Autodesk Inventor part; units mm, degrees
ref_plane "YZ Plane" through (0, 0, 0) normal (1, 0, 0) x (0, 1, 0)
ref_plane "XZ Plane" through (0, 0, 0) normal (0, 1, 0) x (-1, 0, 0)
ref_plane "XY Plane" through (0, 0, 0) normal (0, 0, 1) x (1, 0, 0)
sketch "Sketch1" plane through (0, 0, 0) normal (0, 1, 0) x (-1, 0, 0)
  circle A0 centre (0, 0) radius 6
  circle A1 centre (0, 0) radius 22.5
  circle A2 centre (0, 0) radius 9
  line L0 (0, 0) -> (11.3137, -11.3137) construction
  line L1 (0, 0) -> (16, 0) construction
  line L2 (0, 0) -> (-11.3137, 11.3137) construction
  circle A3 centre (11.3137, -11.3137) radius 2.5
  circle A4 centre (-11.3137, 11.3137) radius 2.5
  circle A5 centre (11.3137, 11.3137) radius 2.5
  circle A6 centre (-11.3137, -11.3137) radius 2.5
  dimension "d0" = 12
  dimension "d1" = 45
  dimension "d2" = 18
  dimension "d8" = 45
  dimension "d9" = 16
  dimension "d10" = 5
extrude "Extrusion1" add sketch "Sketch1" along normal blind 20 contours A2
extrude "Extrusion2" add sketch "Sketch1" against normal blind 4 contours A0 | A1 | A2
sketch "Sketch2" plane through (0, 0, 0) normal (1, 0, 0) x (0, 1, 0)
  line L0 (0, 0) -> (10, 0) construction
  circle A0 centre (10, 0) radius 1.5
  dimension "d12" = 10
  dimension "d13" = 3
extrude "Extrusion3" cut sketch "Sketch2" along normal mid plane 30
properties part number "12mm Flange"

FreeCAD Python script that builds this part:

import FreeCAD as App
import Part
import Sketcher

doc = App.newDocument("Part")
body = doc.addObject("PartDesign::Body", "Body")

sketch1 = body.newObject("Sketcher::SketchObject", "Sketch")
sketch1.AttachmentSupport = (doc.getObject("XZ_Plane"), [""])
sketch1.MapMode = "FlatFace"
sketch1.addGeometry(Part.Circle(App.Vector(0, 0, 0), App.Vector(0, 0, 1), 9), False)
sketch1.addGeometry(Part.Circle(App.Vector(0, 0, 0), App.Vector(0, 0, 1), 6), False)
sketch1.addConstraint(Sketcher.Constraint("Coincident", 0, 3, -1, 1))
sketch1.addConstraint(Sketcher.Constraint("Coincident", 1, 3, -1, 1))
sketch1.addConstraint(Sketcher.Constraint("Diameter", 0, 18.0))
sketch1.addConstraint(Sketcher.Constraint("Diameter", 1, 12.0))
pad1 = body.newObject("PartDesign::Pad", "Pad")
pad1.Profile = sketch1
pad1.Length = 20
pad1.Reversed = True

sketch2 = body.newObject("Sketcher::SketchObject", "Sketch001")
sketch2.AttachmentSupport = (doc.getObject("XZ_Plane"), [""])
sketch2.MapMode = "FlatFace"
sketch2.addGeometry(Part.Circle(App.Vector(0, 0, 0), App.Vector(0, 0, 1), 22.5), False)
sketch2.addGeometry(Part.Circle(App.Vector(11.3, -11.3, 0), App.Vector(0, 0, 1), 2.5), False)
sketch2.addGeometry(Part.Circle(App.Vector(-11.3, -11.3, 0), App.Vector(0, 0, 1), 2.5), False)
sketch2.addGeometry(Part.Circle(App.Vector(11.3, 11.3, 0), App.Vector(0, 0, 1), 2.5), False)
sketch2.addGeometry(Part.Circle(App.Vector(-11.3, 11.3, 0), App.Vector(0, 0, 1), 2.5), False)
sketch2.addConstraint(Sketcher.Constraint("Coincident", 0, 3, -1, 1))
sketch2.addConstraint(Sketcher.Constraint("Equal", 1, 2))
sketch2.addConstraint(Sketcher.Constraint("Equal", 2, 3))
sketch2.addConstraint(Sketcher.Constraint("Equal", 3, 4))
sketch2.addConstraint(Sketcher.Constraint("Symmetric", 2, 3, 3, 3, -1, 1))
sketch2.addConstraint(Sketcher.Constraint("Symmetric", 1, 3, 4, 3, -1, 1))
sketch2.addConstraint(Sketcher.Constraint("Symmetric", 1, 3, 2, 3, -2))
sketch2.addConstraint(Sketcher.Constraint("Diameter", 0, 45.0))
sketch2.addConstraint(Sketcher.Constraint("Diameter", 1, 5.0))
sketch2.addConstraint(Sketcher.Constraint("DistanceX", -1, 1, 1, 3, 11.3137))
sketch2.addConstraint(Sketcher.Constraint("DistanceY", 1, 3, -1, 1, 11.3137))
pad2 = body.newObject("PartDesign::Pad", "Pad001")
pad2.Profile = sketch2
pad2.Length = 4

sketch3 = body.newObject("Sketcher::SketchObject", "Sketch002")
sketch3.AttachmentSupport = (doc.getObject("YZ_Plane"), [""])
sketch3.MapMode = "FlatFace"
sketch3.addGeometry(Part.Circle(App.Vector(10, 0, 0), App.Vector(0, 0, 1), 1.5), False)
sketch3.addConstraint(Sketcher.Constraint("PointOnObject", 0, 3, -1))
sketch3.addConstraint(Sketcher.Constraint("Diameter", 0, 3.0))
sketch3.addConstraint(Sketcher.Constraint("DistanceX", -1, 1, 0, 3, 10.0))
pocket1 = body.newObject("PartDesign::Pocket", "Pocket")
pocket1.Profile = sketch3
pocket1.Length = 30
pocket1.Midplane = True

doc.recompute()
